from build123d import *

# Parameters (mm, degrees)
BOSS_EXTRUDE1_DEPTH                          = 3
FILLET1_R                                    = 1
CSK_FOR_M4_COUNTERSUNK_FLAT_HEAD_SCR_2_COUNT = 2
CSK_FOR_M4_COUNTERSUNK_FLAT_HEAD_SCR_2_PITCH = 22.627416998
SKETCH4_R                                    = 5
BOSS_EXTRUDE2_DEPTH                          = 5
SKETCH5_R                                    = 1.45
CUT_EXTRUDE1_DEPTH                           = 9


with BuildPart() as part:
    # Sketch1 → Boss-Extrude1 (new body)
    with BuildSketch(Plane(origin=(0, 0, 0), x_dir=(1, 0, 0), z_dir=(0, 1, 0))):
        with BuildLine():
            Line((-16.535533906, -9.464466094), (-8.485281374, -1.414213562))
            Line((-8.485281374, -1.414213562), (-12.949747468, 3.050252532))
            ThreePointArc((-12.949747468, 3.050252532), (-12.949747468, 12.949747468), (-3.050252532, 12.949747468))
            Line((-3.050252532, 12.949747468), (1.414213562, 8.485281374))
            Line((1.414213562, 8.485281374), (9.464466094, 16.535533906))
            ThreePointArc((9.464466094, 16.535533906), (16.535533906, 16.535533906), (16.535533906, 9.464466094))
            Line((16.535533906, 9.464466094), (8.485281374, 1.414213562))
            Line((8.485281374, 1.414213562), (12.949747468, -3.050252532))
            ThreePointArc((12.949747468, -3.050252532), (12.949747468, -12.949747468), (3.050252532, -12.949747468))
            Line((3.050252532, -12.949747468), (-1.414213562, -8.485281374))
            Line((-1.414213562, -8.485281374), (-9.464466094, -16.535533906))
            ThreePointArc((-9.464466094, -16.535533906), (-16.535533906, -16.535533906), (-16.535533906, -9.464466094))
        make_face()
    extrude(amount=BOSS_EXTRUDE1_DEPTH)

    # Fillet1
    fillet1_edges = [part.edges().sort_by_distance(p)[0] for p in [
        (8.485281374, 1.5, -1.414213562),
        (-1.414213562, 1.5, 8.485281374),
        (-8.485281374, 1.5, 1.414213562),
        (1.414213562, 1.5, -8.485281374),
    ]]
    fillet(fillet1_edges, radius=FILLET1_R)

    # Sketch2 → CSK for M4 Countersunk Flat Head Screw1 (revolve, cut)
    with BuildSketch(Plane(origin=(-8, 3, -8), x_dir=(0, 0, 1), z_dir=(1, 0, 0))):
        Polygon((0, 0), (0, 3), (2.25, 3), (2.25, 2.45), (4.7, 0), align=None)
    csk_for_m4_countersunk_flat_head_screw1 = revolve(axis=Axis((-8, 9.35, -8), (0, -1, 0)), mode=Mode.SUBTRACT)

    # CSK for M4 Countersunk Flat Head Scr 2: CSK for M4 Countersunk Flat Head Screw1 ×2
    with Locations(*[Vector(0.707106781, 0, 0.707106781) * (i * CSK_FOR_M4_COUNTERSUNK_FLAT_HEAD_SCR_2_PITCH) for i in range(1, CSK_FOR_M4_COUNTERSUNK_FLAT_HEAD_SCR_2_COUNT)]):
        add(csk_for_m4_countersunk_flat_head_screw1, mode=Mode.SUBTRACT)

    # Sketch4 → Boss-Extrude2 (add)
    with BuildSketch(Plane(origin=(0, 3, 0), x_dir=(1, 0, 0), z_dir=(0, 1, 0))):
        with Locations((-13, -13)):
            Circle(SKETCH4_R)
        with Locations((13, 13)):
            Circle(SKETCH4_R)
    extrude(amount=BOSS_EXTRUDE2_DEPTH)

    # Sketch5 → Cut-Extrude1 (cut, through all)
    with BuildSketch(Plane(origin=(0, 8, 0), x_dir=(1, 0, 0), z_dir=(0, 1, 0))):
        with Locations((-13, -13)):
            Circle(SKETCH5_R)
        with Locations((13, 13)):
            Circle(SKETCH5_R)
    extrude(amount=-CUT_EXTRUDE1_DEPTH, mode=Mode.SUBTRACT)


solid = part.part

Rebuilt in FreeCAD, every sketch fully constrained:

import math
import FreeCAD as App
import Part
import Sketcher
Q = App.Units.Quantity


def edges_at(feature, points):
    """Names of the edges that pass closest to the given points."""
    edges = feature.Shape.Edges
    near = lambda p: min(range(len(edges)), key=lambda i: edges[i].distToShape(Part.Vertex(*p))[0])
    return sorted({f"Edge{near(p) + 1}" for p in points})

doc = App.newDocument("Part")
params = doc.addObject("Spreadsheet::Sheet", "Params")
for row, (alias, value) in enumerate([
    ("sketch1_radius", "5 mm"),
    ("sketch1_radius2", "7 mm"),
    ("pad1_length", "3 mm"),
    ("fillet_radius", "1 mm"),
    ("sketch2_width", "3 mm"),
    ("sketch2_height", "4.7 mm"),
    ("sketch2_width2", "0.55 mm"),
    ("groove_angle", "360 deg"),
    ("linearpattern_pitch", "22.627417 mm"),
    ("sketch3_diameter", "10 mm"),
    ("pad2_length", "5 mm"),
    ("sketch4_diameter", "2.9 mm"),
], start=1):
    params.set(f"A{row}", alias)
    params.set(f"B{row}", "=" + value)
    params.setAlias(f"B{row}", alias)

body = doc.addObject("PartDesign::Body", "Body")

# Sketch on XZ plane
sketch1 = body.newObject("Sketcher::SketchObject", "Sketch")
sketch1.AttachmentSupport = (doc.getObject("XZ_Plane"), [""])
sketch1.MapMode = "FlatFace"
sketch1.addGeometry(Part.LineSegment(App.Vector(-8, 1, 0), App.Vector(-17, 9, 0)), False)
sketch1.addGeometry(Part.ArcOfCircle(Part.Circle(App.Vector(-13, 13, 0), App.Vector(0, 0, 1), 5), math.radians(45), math.radians(225)), False)
sketch1.addGeometry(Part.LineSegment(App.Vector(-9, 17, 0), App.Vector(-1, 8, 0)), False)
sketch1.addGeometry(Part.LineSegment(App.Vector(-1, 8, 0), App.Vector(3, 13, 0)), False)
sketch1.addGeometry(Part.ArcOfCircle(Part.Circle(App.Vector(8, 8, 0), App.Vector(0, 0, 1), 7), math.radians(-45), math.radians(135)), False)
sketch1.addGeometry(Part.LineSegment(App.Vector(13, 3, 0), App.Vector(8, -1, 0)), False)
sketch1.addGeometry(Part.LineSegment(App.Vector(8, -1, 0), App.Vector(17, -9, 0)), False)
sketch1.addGeometry(Part.ArcOfCircle(Part.Circle(App.Vector(13, -13, 0), App.Vector(0, 0, 1), 5), math.radians(-135), math.radians(45)), False)
sketch1.addGeometry(Part.LineSegment(App.Vector(9, -17, 0), App.Vector(1, -8, 0)), False)
sketch1.addGeometry(Part.LineSegment(App.Vector(1, -8, 0), App.Vector(-3, -13, 0)), False)
sketch1.addGeometry(Part.ArcOfCircle(Part.Circle(App.Vector(-8, -8, 0), App.Vector(0, 0, 1), 7), math.radians(135), math.radians(315)), False)
sketch1.addGeometry(Part.LineSegment(App.Vector(-13, -3, 0), App.Vector(-8, 1, 0)), False)
sketch1.addConstraint(Sketcher.Constraint("Tangent", 0, 2, 1, 2))
sketch1.addConstraint(Sketcher.Constraint("Tangent", 1, 1, 2, 1))
sketch1.addConstraint(Sketcher.Constraint("Coincident", 2, 2, 3, 1))
sketch1.addConstraint(Sketcher.Constraint("Tangent", 3, 2, 4, 2))
sketch1.addConstraint(Sketcher.Constraint("Tangent", 4, 1, 5, 1))
sketch1.addConstraint(Sketcher.Constraint("Coincident", 5, 2, 6, 1))
sketch1.addConstraint(Sketcher.Constraint("Tangent", 6, 2, 7, 2))
sketch1.addConstraint(Sketcher.Constraint("Tangent", 7, 1, 8, 1))
sketch1.addConstraint(Sketcher.Constraint("Coincident", 8, 2, 9, 1))
sketch1.addConstraint(Sketcher.Constraint("Tangent", 9, 2, 10, 2))
sketch1.addConstraint(Sketcher.Constraint("Tangent", 10, 1, 11, 1))
sketch1.addConstraint(Sketcher.Constraint("Coincident", 11, 2, 0, 1))
sketch1.addConstraint(Sketcher.Constraint("Equal", 1, 7))
sketch1.addConstraint(Sketcher.Constraint("Equal", 4, 10))
sketch1.addConstraint(Sketcher.Constraint("Symmetric", 1, 3, 7, 3, -1, 1))
sketch1.addConstraint(Sketcher.Constraint("Symmetric", 4, 3, 10, 3, -1, 1))
sketch1.addConstraint(Sketcher.Constraint("Symmetric", 2, 2, 8, 2, -1, 1))
sketch1.addConstraint(Sketcher.Constraint("Symmetric", 5, 2, 11, 2, -1, 1))
sketch1.addConstraint(Sketcher.Constraint("Parallel", 0, 2))
sketch1.addConstraint(Sketcher.Constraint("Perpendicular", 2, 3))
sketch1.addConstraint(Sketcher.Constraint("Parallel", 3, 5))
sketch1.addConstraint(Sketcher.Constraint("Equal", 0, 2))
sketch1.addConstraint(Sketcher.Constraint("Equal", 3, 5))
sketch1.addConstraint(Sketcher.Constraint("Radius", 1, 5.0))
sketch1.addConstraint(Sketcher.Constraint("Radius", 4, 7.0))
sketch1.addConstraint(Sketcher.Constraint("Angle", 0, Q("135 deg")))
sketch1.addConstraint(Sketcher.Constraint("DistanceX", 1, 3, -1, 1, 13.0))
sketch1.addConstraint(Sketcher.Constraint("DistanceX", -1, 1, 4, 3, 8.0))
sketch1.setExpression("Constraints[23]", "Params.sketch1_radius")
sketch1.setExpression("Constraints[24]", "Params.sketch1_radius2")
pad1 = body.newObject("PartDesign::Pad", "Pad")
pad1.Profile = sketch1
pad1.setExpression("Length", "Params.pad1_length")
pad1.Reversed = True
doc.recompute()

fillet = body.newObject("PartDesign::Fillet", "Fillet")
fillet.Base = (pad1, edges_at(pad1, [
    (8.485, 1.5, -1.414),
    (-1.414, 1.5, 8.485),
    (-8.485, 1.5, 1.414),
    (1.414, 1.5, -8.485),
]))
fillet.setExpression("Radius", "Params.fillet_radius")

# Sketch on YZ plane
sketch2 = body.newObject("Sketcher::SketchObject", "Sketch001")
sketch2.AttachmentSupport = (doc.getObject("YZ_Plane"), [""])
sketch2.MapMode = "FlatFace"
sketch2.AttachmentOffset = App.Placement(App.Vector(0, 0, -8), App.Rotation())
sketch2.addGeometry(Part.LineSegment(App.Vector(0, -8, 0), App.Vector(3, -8, 0)), False)
sketch2.addGeometry(Part.LineSegment(App.Vector(3, -8, 0), App.Vector(3, -3.3, 0)), False)
sketch2.addGeometry(Part.LineSegment(App.Vector(3, -3.3, 0), App.Vector(0.6, -5.8, 0)), False)
sketch2.addGeometry(Part.LineSegment(App.Vector(0.6, -5.8, 0), App.Vector(0, -5.8, 0)), False)
sketch2.addGeometry(Part.LineSegment(App.Vector(0, -5.8, 0), App.Vector(0, -8, 0)), False)
sketch2.addGeometry(Part.LineSegment(App.Vector(3, -8, 0), App.Vector(0, -8, 0)), True)  # axis
sketch2.addConstraint(Sketcher.Constraint("Coincident", 0, 2, 1, 1))
sketch2.addConstraint(Sketcher.Constraint("Coincident", 1, 2, 2, 1))
sketch2.addConstraint(Sketcher.Constraint("Coincident", 2, 2, 3, 1))
sketch2.addConstraint(Sketcher.Constraint("Coincident", 3, 2, 4, 1))
sketch2.addConstraint(Sketcher.Constraint("Coincident", 4, 2, 0, 1))
sketch2.addConstraint(Sketcher.Constraint("Horizontal", 0))
sketch2.addConstraint(Sketcher.Constraint("Vertical", 1))
sketch2.addConstraint(Sketcher.Constraint("Horizontal", 3))
sketch2.addConstraint(Sketcher.Constraint("Vertical", 4))
sketch2.addConstraint(Sketcher.Constraint("Horizontal", 5))
sketch2.addConstraint(Sketcher.Constraint("Coincident", 5, 1, 0, 2))
sketch2.addConstraint(Sketcher.Constraint("PointOnObject", 3, 2, -2))
sketch2.addConstraint(Sketcher.Constraint("PointOnObject", 5, 2, -2))
sketch2.addConstraint(Sketcher.Constraint("DistanceX", 0, 1, 0, 2, 3.0))
sketch2.addConstraint(Sketcher.Constraint("Angle", 2, Q("-135 deg")))
sketch2.addConstraint(Sketcher.Constraint("DistanceY", 1, 1, 1, 2, 4.7))
sketch2.addConstraint(Sketcher.Constraint("DistanceY", 0, 2, -1, 1, 8.0))
sketch2.addConstraint(Sketcher.Constraint("DistanceX", 3, 2, 3, 1, 0.55))
sketch2.setExpression("Constraints[13]", "Params.sketch2_width")
sketch2.setExpression("Constraints[15]", "Params.sketch2_height")
sketch2.setExpression("Constraints[17]", "Params.sketch2_width2")
groove = body.newObject("PartDesign::Groove", "Groove")
groove.Profile = sketch2
groove.ReferenceAxis = (sketch2, ["Axis0"])
groove.setExpression("Angle", "Params.groove_angle")
doc.recompute()

datumline = body.newObject("PartDesign::Line", "DatumLine")
datumline.Placement = App.Placement(App.Vector(0, 0, 0), App.Rotation(App.Vector(0, 0, 1), App.Vector(0.707106781, 0, 0.707106781)))
linearpattern = body.newObject("PartDesign::LinearPattern", "LinearPattern")
linearpattern.Originals = [groove]
linearpattern.Direction = (datumline, [""])
linearpattern.Mode = "offset"
linearpattern.setExpression("Offset", "Params.linearpattern_pitch")
linearpattern.Occurrences = 2
body.Tip = linearpattern

# Sketch on XZ plane
sketch3 = body.newObject("Sketcher::SketchObject", "Sketch002")
sketch3.AttachmentSupport = (doc.getObject("XZ_Plane"), [""])
sketch3.MapMode = "FlatFace"
sketch3.AttachmentOffset = App.Placement(App.Vector(0, 0, -3), App.Rotation())
sketch3.addGeometry(Part.Circle(App.Vector(-13, 13, 0), App.Vector(0, 0, 1), 5), False)
sketch3.addGeometry(Part.Circle(App.Vector(13, -13, 0), App.Vector(0, 0, 1), 5), False)
sketch3.addConstraint(Sketcher.Constraint("Equal", 0, 1))
sketch3.addConstraint(Sketcher.Constraint("Symmetric", 0, 3, 1, 3, -1, 1))
sketch3.addConstraint(Sketcher.Constraint("Diameter", 0, 10.0))
sketch3.addConstraint(Sketcher.Constraint("DistanceX", 0, 3, -1, 1, 13.0))
sketch3.addConstraint(Sketcher.Constraint("DistanceY", -1, 1, 0, 3, 13.0))
sketch3.setExpression("Constraints[2]", "Params.sketch3_diameter")
pad2 = body.newObject("PartDesign::Pad", "Pad001")
pad2.Profile = sketch3
pad2.setExpression("Length", "Params.pad2_length")
pad2.Reversed = True

# Sketch on XZ plane
sketch4 = body.newObject("Sketcher::SketchObject", "Sketch003")
sketch4.AttachmentSupport = (doc.getObject("XZ_Plane"), [""])
sketch4.MapMode = "FlatFace"
sketch4.AttachmentOffset = App.Placement(App.Vector(0, 0, -8), App.Rotation())
sketch4.addGeometry(Part.Circle(App.Vector(-13, 13, 0), App.Vector(0, 0, 1), 1.4), False)
sketch4.addGeometry(Part.Circle(App.Vector(13, -13, 0), App.Vector(0, 0, 1), 1.4), False)
sketch4.addConstraint(Sketcher.Constraint("Equal", 0, 1))
sketch4.addConstraint(Sketcher.Constraint("Symmetric", 0, 3, 1, 3, -1, 1))
sketch4.addConstraint(Sketcher.Constraint("Diameter", 0, 2.9))
sketch4.addConstraint(Sketcher.Constraint("DistanceX", 0, 3, -1, 1, 13.0))
sketch4.addConstraint(Sketcher.Constraint("DistanceY", -1, 1, 0, 3, 13.0))
sketch4.setExpression("Constraints[2]", "Params.sketch4_diameter")
pocket1 = body.newObject("PartDesign::Pocket", "Pocket")
pocket1.Profile = sketch4
pocket1.Type = "ThroughAll"
pocket1.Reversed = True

doc.recompute()
